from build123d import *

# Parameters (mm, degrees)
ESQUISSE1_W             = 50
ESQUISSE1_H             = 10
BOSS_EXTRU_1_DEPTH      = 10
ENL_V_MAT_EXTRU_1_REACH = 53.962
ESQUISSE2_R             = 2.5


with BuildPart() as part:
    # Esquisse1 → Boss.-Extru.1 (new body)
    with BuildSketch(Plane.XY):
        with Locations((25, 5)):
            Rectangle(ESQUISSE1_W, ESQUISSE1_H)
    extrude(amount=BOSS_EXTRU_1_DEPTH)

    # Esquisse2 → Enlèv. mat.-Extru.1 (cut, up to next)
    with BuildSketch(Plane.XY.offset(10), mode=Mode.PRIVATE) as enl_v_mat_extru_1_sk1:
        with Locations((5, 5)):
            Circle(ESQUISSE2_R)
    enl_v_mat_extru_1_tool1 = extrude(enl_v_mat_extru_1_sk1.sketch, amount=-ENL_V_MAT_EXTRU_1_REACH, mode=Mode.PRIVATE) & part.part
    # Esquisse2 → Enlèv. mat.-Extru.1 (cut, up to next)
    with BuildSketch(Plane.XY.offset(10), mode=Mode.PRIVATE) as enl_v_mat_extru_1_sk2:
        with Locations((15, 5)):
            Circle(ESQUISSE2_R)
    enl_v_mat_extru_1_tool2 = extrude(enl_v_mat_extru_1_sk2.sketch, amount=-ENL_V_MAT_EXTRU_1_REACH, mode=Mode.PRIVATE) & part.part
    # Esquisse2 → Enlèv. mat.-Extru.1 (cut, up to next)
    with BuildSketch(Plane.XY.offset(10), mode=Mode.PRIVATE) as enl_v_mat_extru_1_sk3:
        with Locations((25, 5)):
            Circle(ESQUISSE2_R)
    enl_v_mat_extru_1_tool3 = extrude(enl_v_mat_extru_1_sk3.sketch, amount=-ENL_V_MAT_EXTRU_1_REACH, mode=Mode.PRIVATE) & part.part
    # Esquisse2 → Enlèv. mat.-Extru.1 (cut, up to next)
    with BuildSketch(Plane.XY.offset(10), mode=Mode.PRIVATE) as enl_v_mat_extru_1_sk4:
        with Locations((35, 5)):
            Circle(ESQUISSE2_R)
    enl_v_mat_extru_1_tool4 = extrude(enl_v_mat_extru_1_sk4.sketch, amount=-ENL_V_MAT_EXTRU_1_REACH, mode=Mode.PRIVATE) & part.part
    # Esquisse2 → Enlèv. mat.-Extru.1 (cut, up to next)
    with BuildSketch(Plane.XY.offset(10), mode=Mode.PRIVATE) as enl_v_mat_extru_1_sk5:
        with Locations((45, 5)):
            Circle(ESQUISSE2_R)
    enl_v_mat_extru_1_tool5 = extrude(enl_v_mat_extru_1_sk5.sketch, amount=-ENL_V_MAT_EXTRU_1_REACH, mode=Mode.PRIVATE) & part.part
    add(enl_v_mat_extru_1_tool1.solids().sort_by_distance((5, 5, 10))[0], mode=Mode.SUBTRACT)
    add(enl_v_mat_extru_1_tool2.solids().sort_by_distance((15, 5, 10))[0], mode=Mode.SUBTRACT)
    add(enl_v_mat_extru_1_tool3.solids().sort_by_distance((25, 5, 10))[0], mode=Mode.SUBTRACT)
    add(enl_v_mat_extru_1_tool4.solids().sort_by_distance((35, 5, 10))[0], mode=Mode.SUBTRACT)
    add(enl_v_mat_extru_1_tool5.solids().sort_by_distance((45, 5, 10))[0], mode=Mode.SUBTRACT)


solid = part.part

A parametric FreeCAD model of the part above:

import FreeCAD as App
import Part
import Sketcher

V = App.Vector


def add_polygon(sketch, points):
    """Adds a closed chain of lines whose ends are joined by coincident constraints."""
    first, n = sketch.GeometryCount, len(points)
    for a, b in zip(points, points[1:] + points[:1]):
        sketch.addGeometry(Part.LineSegment(App.Vector(*a, 0), App.Vector(*b, 0)), False)
    for i in range(n):
        sketch.addConstraint(Sketcher.Constraint("Coincident", first + i, 2, first + (i + 1) % n, 1))

doc = App.newDocument("Part")
body = doc.addObject("PartDesign::Body", "Body")

# Sketch on XY plane
sketch1 = doc.addObject("Sketcher::SketchObject", "Sketch")
body.addObject(sketch1)
sketch1.AttachmentSupport = (doc.XY_Plane, [""])
sketch1.MapMode = "FlatFace"
add_polygon(sketch1, [(0, 10), (0, 0), (50, 0), (50, 10)])  # lines 0-3
sketch1.addConstraint([
    Sketcher.Constraint("Vertical", 0),
    Sketcher.Constraint("Horizontal", 1),
    Sketcher.Constraint("Vertical", 2),
    Sketcher.Constraint("Horizontal", 3),
    Sketcher.Constraint("Coincident", 0, 2, -1, 1),
    Sketcher.Constraint("DistanceX", 1, 1, 1, 2, 50.0),
    Sketcher.Constraint("DistanceY", 0, 2, 0, 1, 10.0),
])
pad1 = doc.addObject("PartDesign::Pad", "Pad")
body.addObject(pad1)
pad1.Profile = sketch1
pad1.Length = 10

# Sketch on XY plane
sketch2 = doc.addObject("Sketcher::SketchObject", "Sketch001")
body.addObject(sketch2)
sketch2.AttachmentSupport = (doc.XY_Plane, [""])
sketch2.MapMode = "FlatFace"
sketch2.AttachmentOffset = App.Placement(V(0, 0, 10), App.Rotation())
sketch2.addGeometry(Part.Circle(V(5, 5, 0), V(0, 0, 1), 2.5), False)
sketch2.addConstraint([
    Sketcher.Constraint("Diameter", 0, 5.0),
    Sketcher.Constraint("DistanceX", -1, 1, 0, 3, 5.0),
    Sketcher.Constraint("DistanceY", -1, 1, 0, 3, 5.0),
])
pocket1 = doc.addObject("PartDesign::Pocket", "Pocket")
body.addObject(pocket1)
pocket1.Profile = sketch2
pocket1.Type = "UpToFirst"

# Sketch on XY plane
sketch3 = doc.addObject("Sketcher::SketchObject", "Sketch002")
body.addObject(sketch3)
sketch3.AttachmentSupport = (doc.XY_Plane, [""])
sketch3.MapMode = "FlatFace"
sketch3.AttachmentOffset = App.Placement(V(0, 0, 10), App.Rotation())
sketch3.addGeometry(Part.Circle(V(15, 5, 0), V(0, 0, 1), 2.5), False)
sketch3.addConstraint([
    Sketcher.Constraint("Diameter", 0, 5.0),
    Sketcher.Constraint("DistanceX", -1, 1, 0, 3, 15.0),
    Sketcher.Constraint("DistanceY", -1, 1, 0, 3, 5.0),
])
pocket2 = doc.addObject("PartDesign::Pocket", "Pocket001")
body.addObject(pocket2)
pocket2.Profile = sketch3
pocket2.Type = "UpToFirst"

# Sketch on XY plane
sketch4 = doc.addObject("Sketcher::SketchObject", "Sketch003")
body.addObject(sketch4)
sketch4.AttachmentSupport = (doc.XY_Plane, [""])
sketch4.MapMode = "FlatFace"
sketch4.AttachmentOffset = App.Placement(V(0, 0, 10), App.Rotation())
sketch4.addGeometry(Part.Circle(V(25, 5, 0), V(0, 0, 1), 2.5), False)
sketch4.addConstraint([
    Sketcher.Constraint("Diameter", 0, 5.0),
    Sketcher.Constraint("DistanceX", -1, 1, 0, 3, 25.0),
    Sketcher.Constraint("DistanceY", -1, 1, 0, 3, 5.0),
])
pocket3 = doc.addObject("PartDesign::Pocket", "Pocket002")
body.addObject(pocket3)
pocket3.Profile = sketch4
pocket3.Type = "UpToFirst"

# Sketch on XY plane
sketch5 = doc.addObject("Sketcher::SketchObject", "Sketch004")
body.addObject(sketch5)
sketch5.AttachmentSupport = (doc.XY_Plane, [""])
sketch5.MapMode = "FlatFace"
sketch5.AttachmentOffset = App.Placement(V(0, 0, 10), App.Rotation())
sketch5.addGeometry(Part.Circle(V(35, 5, 0), V(0, 0, 1), 2.5), False)
sketch5.addConstraint([
    Sketcher.Constraint("Diameter", 0, 5.0),
    Sketcher.Constraint("DistanceX", -1, 1, 0, 3, 35.0),
    Sketcher.Constraint("DistanceY", -1, 1, 0, 3, 5.0),
])
pocket4 = doc.addObject("PartDesign::Pocket", "Pocket003")
body.addObject(pocket4)
pocket4.Profile = sketch5
pocket4.Type = "UpToFirst"

# Sketch on XY plane
sketch6 = doc.addObject("Sketcher::SketchObject", "Sketch005")
body.addObject(sketch6)
sketch6.AttachmentSupport = (doc.XY_Plane, [""])
sketch6.MapMode = "FlatFace"
sketch6.AttachmentOffset = App.Placement(V(0, 0, 10), App.Rotation())
sketch6.addGeometry(Part.Circle(V(45, 5, 0), V(0, 0, 1), 2.5), False)
sketch6.addConstraint([
    Sketcher.Constraint("Diameter", 0, 5.0),
    Sketcher.Constraint("DistanceX", -1, 1, 0, 3, 45.0),
    Sketcher.Constraint("DistanceY", -1, 1, 0, 3, 5.0),
])
pocket5 = doc.addObject("PartDesign::Pocket", "Pocket004")
body.addObject(pocket5)
pocket5.Profile = sketch6
pocket5.Type = "UpToFirst"

doc.recompute()
